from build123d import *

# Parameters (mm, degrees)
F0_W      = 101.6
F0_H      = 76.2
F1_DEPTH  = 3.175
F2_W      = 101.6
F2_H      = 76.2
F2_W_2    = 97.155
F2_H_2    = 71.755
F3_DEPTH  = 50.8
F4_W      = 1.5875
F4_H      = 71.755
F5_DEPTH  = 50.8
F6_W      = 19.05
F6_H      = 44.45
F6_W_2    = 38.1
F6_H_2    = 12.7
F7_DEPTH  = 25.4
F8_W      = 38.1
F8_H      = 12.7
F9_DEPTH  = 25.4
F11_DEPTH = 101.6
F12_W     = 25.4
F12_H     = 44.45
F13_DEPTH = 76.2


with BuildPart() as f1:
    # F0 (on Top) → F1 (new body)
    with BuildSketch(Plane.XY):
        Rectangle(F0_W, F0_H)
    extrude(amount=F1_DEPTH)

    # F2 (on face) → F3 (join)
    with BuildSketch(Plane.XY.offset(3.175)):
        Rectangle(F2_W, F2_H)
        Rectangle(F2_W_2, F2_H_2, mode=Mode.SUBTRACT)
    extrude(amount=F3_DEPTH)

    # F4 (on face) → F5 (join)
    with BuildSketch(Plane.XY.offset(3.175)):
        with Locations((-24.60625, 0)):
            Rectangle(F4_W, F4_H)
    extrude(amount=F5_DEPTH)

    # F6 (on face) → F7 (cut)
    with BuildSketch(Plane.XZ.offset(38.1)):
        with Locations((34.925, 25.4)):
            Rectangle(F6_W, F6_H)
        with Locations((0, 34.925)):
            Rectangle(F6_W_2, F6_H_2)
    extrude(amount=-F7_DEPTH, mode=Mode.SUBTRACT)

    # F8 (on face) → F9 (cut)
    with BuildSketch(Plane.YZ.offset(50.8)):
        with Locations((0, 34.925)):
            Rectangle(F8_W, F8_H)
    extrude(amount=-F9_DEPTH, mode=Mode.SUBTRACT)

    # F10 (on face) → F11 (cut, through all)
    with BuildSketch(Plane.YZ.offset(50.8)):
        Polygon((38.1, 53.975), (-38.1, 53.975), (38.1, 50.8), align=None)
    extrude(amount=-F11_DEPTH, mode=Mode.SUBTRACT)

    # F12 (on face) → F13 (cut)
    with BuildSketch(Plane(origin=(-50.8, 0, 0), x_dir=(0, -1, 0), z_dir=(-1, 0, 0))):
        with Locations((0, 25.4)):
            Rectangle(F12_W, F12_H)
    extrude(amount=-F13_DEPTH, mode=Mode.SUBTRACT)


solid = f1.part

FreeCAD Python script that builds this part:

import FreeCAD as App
import Part
import Sketcher
Q = App.Units.Quantity


def add_polygon(sketch, points):
    """Adds a closed chain of lines whose ends are joined by coincident constraints."""
    first, n = sketch.GeometryCount, len(points)
    for a, b in zip(points, points[1:] + points[:1]):
        sketch.addGeometry(Part.LineSegment(App.Vector(*a, 0), App.Vector(*b, 0)), False)
    for i in range(n):
        sketch.addConstraint(Sketcher.Constraint("Coincident", first + i, 2, first + (i + 1) % n, 1))

doc = App.newDocument("Part")
body = doc.addObject("PartDesign::Body", "Body")

# Sketch on XY plane
sketch1 = body.newObject("Sketcher::SketchObject", "Sketch")
sketch1.AttachmentSupport = (doc.getObject("XY_Plane"), [""])
sketch1.MapMode = "FlatFace"
add_polygon(sketch1, [(-50.8, 38.1), (-50.8, -38.1), (50.8, -38.1), (50.8, 38.1)])  # lines 0-3
sketch1.addConstraint([
    Sketcher.Constraint("Vertical", 0),
    Sketcher.Constraint("Horizontal", 1),
    Sketcher.Constraint("Vertical", 2),
    Sketcher.Constraint("Horizontal", 3),
    Sketcher.Constraint("Symmetric", 0, 2, 2, 2, -1, 1),
    Sketcher.Constraint("DistanceX", 1, 1, 1, 2, Q("4 in")),
    Sketcher.Constraint("DistanceY", 0, 2, 0, 1, Q("3 in")),
])
pad1 = body.newObject("PartDesign::Pad", "Pad")
pad1.Profile = sketch1
pad1.Length = Q("0.125 in")

# Sketch on XY plane
sketch2 = body.newObject("Sketcher::SketchObject", "Sketch001")
sketch2.AttachmentSupport = (doc.getObject("XY_Plane"), [""])
sketch2.MapMode = "FlatFace"
sketch2.AttachmentOffset = App.Placement(App.Vector(0, 0, 0.125 * 25.4), App.Rotation())
add_polygon(sketch2, [(-50.8, 38.1), (-50.8, -38.1), (50.8, -38.1), (50.8, 38.1)])  # lines 0-3
add_polygon(sketch2, [(48.5775, -35.8775), (-48.5775, -35.8775), (-48.5775, 35.8775), (48.5775, 35.8775)])  # lines 4-7
sketch2.addConstraint([
    Sketcher.Constraint("Vertical", 0),
    Sketcher.Constraint("Horizontal", 1),
    Sketcher.Constraint("Vertical", 2),
    Sketcher.Constraint("Horizontal", 3),
    Sketcher.Constraint("Horizontal", 4),
    Sketcher.Constraint("Vertical", 5),
    Sketcher.Constraint("Horizontal", 6),
    Sketcher.Constraint("Vertical", 7),
    Sketcher.Constraint("Symmetric", 0, 2, 2, 2, -1, 1),
    Sketcher.Constraint("Symmetric", 4, 2, 6, 2, -1, 1),
    Sketcher.Constraint("DistanceX", 1, 1, 1, 2, Q("4 in")),
    Sketcher.Constraint("DistanceY", 0, 2, 0, 1, Q("3 in")),
    Sketcher.Constraint("DistanceX", 4, 2, 4, 1, Q("3.825 in")),
    Sketcher.Constraint("DistanceY", 5, 1, 5, 2, Q("2.825 in")),
])
pad2 = body.newObject("PartDesign::Pad", "Pad001")
pad2.Profile = sketch2
pad2.Length = Q("2 in")

# Sketch on XY plane
sketch3 = body.newObject("Sketcher::SketchObject", "Sketch002")
sketch3.AttachmentSupport = (doc.getObject("XY_Plane"), [""])
sketch3.MapMode = "FlatFace"
sketch3.AttachmentOffset = App.Placement(App.Vector(0, 0, 0.125 * 25.4), App.Rotation())
add_polygon(sketch3, [(-25.4, 35.8775), (-25.4, -35.8775), (-23.8125, -35.8775), (-23.8125, 35.8775)])  # lines 0-3
sketch3.addConstraint([
    Sketcher.Constraint("Vertical", 0),
    Sketcher.Constraint("Horizontal", 1),
    Sketcher.Constraint("Vertical", 2),
    Sketcher.Constraint("Horizontal", 3),
    Sketcher.Constraint("DistanceX", 0, 2, -1, 1, Q("1 in")),
    Sketcher.Constraint("DistanceX", 1, 1, 1, 2, Q("0.0625 in")),
    Sketcher.Constraint("DistanceY", 0, 2, 0, 1, Q("2.825 in")),
    Sketcher.Constraint("DistanceY", 0, 2, -1, 1, Q("1.4125 in")),
])
pad3 = body.newObject("PartDesign::Pad", "Pad002")
pad3.Profile = sketch3
pad3.Length = Q("2 in")

# Sketch on XZ plane
sketch4 = body.newObject("Sketcher::SketchObject", "Sketch003")
sketch4.AttachmentSupport = (doc.getObject("XZ_Plane"), [""])
sketch4.MapMode = "FlatFace"
sketch4.AttachmentOffset = App.Placement(App.Vector(0, 0, 1.5 * 25.4), App.Rotation())
add_polygon(sketch4, [(25.4, 47.625), (25.4, 3.175), (44.45, 3.175), (44.45, 47.625)])  # lines 0-3
add_polygon(sketch4, [(-19.05, 41.275), (-19.05, 28.575), (19.05, 28.575), (19.05, 41.275)])  # lines 4-7
sketch4.addConstraint([
    Sketcher.Constraint("Vertical", 0),
    Sketcher.Constraint("Horizontal", 1),
    Sketcher.Constraint("Vertical", 2),
    Sketcher.Constraint("Horizontal", 3),
    Sketcher.Constraint("Vertical", 4),
    Sketcher.Constraint("Horizontal", 5),
    Sketcher.Constraint("Vertical", 6),
    Sketcher.Constraint("Horizontal", 7),
    Sketcher.Constraint("DistanceX", 5, 1, 5, 2, Q("1.5 in")),
    Sketcher.Constraint("DistanceY", 4, 2, 4, 1, Q("0.5 in")),
    Sketcher.Constraint("DistanceX", -1, 1, 0, 2, Q("1 in")),
    Sketcher.Constraint("DistanceY", 0, 2, 4, 2, Q("1 in")),
    Sketcher.Constraint("DistanceX", 5, 2, 2, 2, Q("1 in")),
    Sketcher.Constraint("DistanceX", 1, 1, 1, 2, Q("0.75 in")),
    Sketcher.Constraint("DistanceY", 0, 2, 0, 1, Q("1.75 in")),
    Sketcher.Constraint("DistanceY", -1, 1, 0, 2, Q("0.125 in")),
])
pocket1 = body.newObject("PartDesign::Pocket", "Pocket")
pocket1.Profile = sketch4
pocket1.Length = Q("1 in")

# Sketch on YZ plane
sketch5 = body.newObject("Sketcher::SketchObject", "Sketch004")
sketch5.AttachmentSupport = (doc.getObject("YZ_Plane"), [""])
sketch5.MapMode = "FlatFace"
sketch5.AttachmentOffset = App.Placement(App.Vector(0, 0, 2 * 25.4), App.Rotation())
add_polygon(sketch5, [(-19.05, 41.275), (-19.05, 28.575), (19.05, 28.575), (19.05, 41.275)])  # lines 0-3
sketch5.addConstraint([
    Sketcher.Constraint("Vertical", 0),
    Sketcher.Constraint("Horizontal", 1),
    Sketcher.Constraint("Vertical", 2),
    Sketcher.Constraint("Horizontal", 3),
    Sketcher.Constraint("DistanceX", 1, 1, 1, 2, Q("1.5 in")),
    Sketcher.Constraint("DistanceY", 0, 2, 0, 1, Q("0.5 in")),
    Sketcher.Constraint("DistanceX", 0, 2, -1, 1, Q("0.75 in")),
    Sketcher.Constraint("DistanceY", -1, 1, 0, 2, Q("1.125 in")),
])
pocket2 = body.newObject("PartDesign::Pocket", "Pocket001")
pocket2.Profile = sketch5
pocket2.Length = Q("1 in")

# Sketch on YZ plane
sketch6 = body.newObject("Sketcher::SketchObject", "Sketch005")
sketch6.AttachmentSupport = (doc.getObject("YZ_Plane"), [""])
sketch6.MapMode = "FlatFace"
sketch6.AttachmentOffset = App.Placement(App.Vector(0, 0, 2 * 25.4), App.Rotation())
add_polygon(sketch6, [(38.1, 53.975), (-38.1, 53.975), (38.1, 50.8)])  # lines 0-2
sketch6.addConstraint([
    Sketcher.Constraint("Horizontal", 0),
    Sketcher.Constraint("Vertical", 2),
    Sketcher.Constraint("DistanceX", 0, 2, 0, 1, Q("3 in")),
    Sketcher.Constraint("DistanceY", -1, 1, 1, 2, Q("2 in")),
    Sketcher.Constraint("DistanceX", 0, 2, -1, 1, Q("1.5 in")),
    Sketcher.Constraint("DistanceY", 2, 1, 2, 2, Q("0.125 in")),
])
pocket3 = body.newObject("PartDesign::Pocket", "Pocket002")
pocket3.Profile = sketch6
pocket3.Type = "ThroughAll"

# Sketch on YZ plane
sketch7 = body.newObject("Sketcher::SketchObject", "Sketch006")
sketch7.AttachmentSupport = (doc.getObject("YZ_Plane"), [""])
sketch7.MapMode = "FlatFace"
sketch7.AttachmentOffset = App.Placement(App.Vector(0, 0, -2 * 25.4), App.Rotation())
add_polygon(sketch7, [(12.7, 47.625), (12.7, 3.175), (-12.7, 3.175), (-12.7, 47.625)])  # lines 0-3
sketch7.addConstraint([
    Sketcher.Constraint("Vertical", 0),
    Sketcher.Constraint("Horizontal", 1),
    Sketcher.Constraint("Vertical", 2),
    Sketcher.Constraint("Horizontal", 3),
    Sketcher.Constraint("DistanceX", 1, 2, 1, 1, Q("1 in")),
    Sketcher.Constraint("DistanceY", 0, 2, 0, 1, Q("1.75 in")),
    Sketcher.Constraint("DistanceX", -1, 1, 0, 2, Q("0.5 in")),
    Sketcher.Constraint("DistanceY", -1, 1, 0, 2, Q("0.125 in")),
])
pocket4 = body.newObject("PartDesign::Pocket", "Pocket003")
pocket4.Profile = sketch7
pocket4.Length = Q("3 in")
pocket4.Reversed = True

doc.recompute()
